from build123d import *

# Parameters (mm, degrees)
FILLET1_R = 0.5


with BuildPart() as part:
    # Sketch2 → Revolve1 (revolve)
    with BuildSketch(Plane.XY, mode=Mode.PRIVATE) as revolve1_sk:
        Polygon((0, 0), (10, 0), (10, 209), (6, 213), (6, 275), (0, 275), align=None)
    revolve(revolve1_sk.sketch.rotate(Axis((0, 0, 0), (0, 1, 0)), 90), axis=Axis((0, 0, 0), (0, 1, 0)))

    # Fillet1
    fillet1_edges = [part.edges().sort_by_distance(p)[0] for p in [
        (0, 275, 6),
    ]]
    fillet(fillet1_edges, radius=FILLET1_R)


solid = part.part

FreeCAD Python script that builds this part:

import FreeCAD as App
import Part
import Sketcher
Q = App.Units.Quantity


def edges_at(feature, points):
    """Names of the edges that pass closest to the given points."""
    edges = feature.Shape.Edges
    near = lambda p: min(range(len(edges)), key=lambda i: edges[i].distToShape(Part.Vertex(*p))[0])
    return sorted({f"Edge{near(p) + 1}" for p in points})


def add_polygon(sketch, points):
    """Adds a closed chain of lines whose ends are joined by coincident constraints."""
    first, n = sketch.GeometryCount, len(points)
    for a, b in zip(points, points[1:] + points[:1]):
        sketch.addGeometry(Part.LineSegment(App.Vector(*a, 0), App.Vector(*b, 0)), False)
    for i in range(n):
        sketch.addConstraint(Sketcher.Constraint("Coincident", first + i, 2, first + (i + 1) % n, 1))

doc = App.newDocument("Part")
body = doc.addObject("PartDesign::Body", "Body")

sketch1 = body.newObject("Sketcher::SketchObject", "Sketch")
sketch1.AttachmentSupport = (doc.getObject("XY_Plane"), [""])
sketch1.MapMode = "FlatFace"
add_polygon(sketch1, [(0, 0), (10, 0), (10, 209), (6, 213), (6, 275), (0, 275)])
sketch1.addConstraint([
    Sketcher.Constraint("Horizontal", 0),
    Sketcher.Constraint("Vertical", 1),
    Sketcher.Constraint("Vertical", 3),
    Sketcher.Constraint("Horizontal", 4),
    Sketcher.Constraint("Vertical", 5),
    Sketcher.Constraint("Coincident", 5, 2, -1, 1),
    Sketcher.Constraint("DistanceX", 0, 1, 0, 2, Q("10 mm")),
    Sketcher.Constraint("DistanceX", 4, 2, 4, 1, Q("6 mm")),
    Sketcher.Constraint("DistanceY", 1, 1, 1, 2, Q("209 mm")),
    Sketcher.Constraint("DistanceY", 3, 1, 3, 2, Q("62 mm")),
    Sketcher.Constraint("DistanceY", 5, 2, 5, 1, Q("275 mm")),
])
revolution = body.newObject("PartDesign::Revolution", "Revolution")
revolution.Profile = sketch1
revolution.ReferenceAxis = (sketch1, ["V_Axis"])
revolution.Angle = 360
doc.recompute()

fillet = body.newObject("PartDesign::Fillet", "Fillet")
fillet.Base = (revolution, edges_at(revolution, [(0, 275, 6)]))
fillet.Radius = 0.5

doc.recompute()
